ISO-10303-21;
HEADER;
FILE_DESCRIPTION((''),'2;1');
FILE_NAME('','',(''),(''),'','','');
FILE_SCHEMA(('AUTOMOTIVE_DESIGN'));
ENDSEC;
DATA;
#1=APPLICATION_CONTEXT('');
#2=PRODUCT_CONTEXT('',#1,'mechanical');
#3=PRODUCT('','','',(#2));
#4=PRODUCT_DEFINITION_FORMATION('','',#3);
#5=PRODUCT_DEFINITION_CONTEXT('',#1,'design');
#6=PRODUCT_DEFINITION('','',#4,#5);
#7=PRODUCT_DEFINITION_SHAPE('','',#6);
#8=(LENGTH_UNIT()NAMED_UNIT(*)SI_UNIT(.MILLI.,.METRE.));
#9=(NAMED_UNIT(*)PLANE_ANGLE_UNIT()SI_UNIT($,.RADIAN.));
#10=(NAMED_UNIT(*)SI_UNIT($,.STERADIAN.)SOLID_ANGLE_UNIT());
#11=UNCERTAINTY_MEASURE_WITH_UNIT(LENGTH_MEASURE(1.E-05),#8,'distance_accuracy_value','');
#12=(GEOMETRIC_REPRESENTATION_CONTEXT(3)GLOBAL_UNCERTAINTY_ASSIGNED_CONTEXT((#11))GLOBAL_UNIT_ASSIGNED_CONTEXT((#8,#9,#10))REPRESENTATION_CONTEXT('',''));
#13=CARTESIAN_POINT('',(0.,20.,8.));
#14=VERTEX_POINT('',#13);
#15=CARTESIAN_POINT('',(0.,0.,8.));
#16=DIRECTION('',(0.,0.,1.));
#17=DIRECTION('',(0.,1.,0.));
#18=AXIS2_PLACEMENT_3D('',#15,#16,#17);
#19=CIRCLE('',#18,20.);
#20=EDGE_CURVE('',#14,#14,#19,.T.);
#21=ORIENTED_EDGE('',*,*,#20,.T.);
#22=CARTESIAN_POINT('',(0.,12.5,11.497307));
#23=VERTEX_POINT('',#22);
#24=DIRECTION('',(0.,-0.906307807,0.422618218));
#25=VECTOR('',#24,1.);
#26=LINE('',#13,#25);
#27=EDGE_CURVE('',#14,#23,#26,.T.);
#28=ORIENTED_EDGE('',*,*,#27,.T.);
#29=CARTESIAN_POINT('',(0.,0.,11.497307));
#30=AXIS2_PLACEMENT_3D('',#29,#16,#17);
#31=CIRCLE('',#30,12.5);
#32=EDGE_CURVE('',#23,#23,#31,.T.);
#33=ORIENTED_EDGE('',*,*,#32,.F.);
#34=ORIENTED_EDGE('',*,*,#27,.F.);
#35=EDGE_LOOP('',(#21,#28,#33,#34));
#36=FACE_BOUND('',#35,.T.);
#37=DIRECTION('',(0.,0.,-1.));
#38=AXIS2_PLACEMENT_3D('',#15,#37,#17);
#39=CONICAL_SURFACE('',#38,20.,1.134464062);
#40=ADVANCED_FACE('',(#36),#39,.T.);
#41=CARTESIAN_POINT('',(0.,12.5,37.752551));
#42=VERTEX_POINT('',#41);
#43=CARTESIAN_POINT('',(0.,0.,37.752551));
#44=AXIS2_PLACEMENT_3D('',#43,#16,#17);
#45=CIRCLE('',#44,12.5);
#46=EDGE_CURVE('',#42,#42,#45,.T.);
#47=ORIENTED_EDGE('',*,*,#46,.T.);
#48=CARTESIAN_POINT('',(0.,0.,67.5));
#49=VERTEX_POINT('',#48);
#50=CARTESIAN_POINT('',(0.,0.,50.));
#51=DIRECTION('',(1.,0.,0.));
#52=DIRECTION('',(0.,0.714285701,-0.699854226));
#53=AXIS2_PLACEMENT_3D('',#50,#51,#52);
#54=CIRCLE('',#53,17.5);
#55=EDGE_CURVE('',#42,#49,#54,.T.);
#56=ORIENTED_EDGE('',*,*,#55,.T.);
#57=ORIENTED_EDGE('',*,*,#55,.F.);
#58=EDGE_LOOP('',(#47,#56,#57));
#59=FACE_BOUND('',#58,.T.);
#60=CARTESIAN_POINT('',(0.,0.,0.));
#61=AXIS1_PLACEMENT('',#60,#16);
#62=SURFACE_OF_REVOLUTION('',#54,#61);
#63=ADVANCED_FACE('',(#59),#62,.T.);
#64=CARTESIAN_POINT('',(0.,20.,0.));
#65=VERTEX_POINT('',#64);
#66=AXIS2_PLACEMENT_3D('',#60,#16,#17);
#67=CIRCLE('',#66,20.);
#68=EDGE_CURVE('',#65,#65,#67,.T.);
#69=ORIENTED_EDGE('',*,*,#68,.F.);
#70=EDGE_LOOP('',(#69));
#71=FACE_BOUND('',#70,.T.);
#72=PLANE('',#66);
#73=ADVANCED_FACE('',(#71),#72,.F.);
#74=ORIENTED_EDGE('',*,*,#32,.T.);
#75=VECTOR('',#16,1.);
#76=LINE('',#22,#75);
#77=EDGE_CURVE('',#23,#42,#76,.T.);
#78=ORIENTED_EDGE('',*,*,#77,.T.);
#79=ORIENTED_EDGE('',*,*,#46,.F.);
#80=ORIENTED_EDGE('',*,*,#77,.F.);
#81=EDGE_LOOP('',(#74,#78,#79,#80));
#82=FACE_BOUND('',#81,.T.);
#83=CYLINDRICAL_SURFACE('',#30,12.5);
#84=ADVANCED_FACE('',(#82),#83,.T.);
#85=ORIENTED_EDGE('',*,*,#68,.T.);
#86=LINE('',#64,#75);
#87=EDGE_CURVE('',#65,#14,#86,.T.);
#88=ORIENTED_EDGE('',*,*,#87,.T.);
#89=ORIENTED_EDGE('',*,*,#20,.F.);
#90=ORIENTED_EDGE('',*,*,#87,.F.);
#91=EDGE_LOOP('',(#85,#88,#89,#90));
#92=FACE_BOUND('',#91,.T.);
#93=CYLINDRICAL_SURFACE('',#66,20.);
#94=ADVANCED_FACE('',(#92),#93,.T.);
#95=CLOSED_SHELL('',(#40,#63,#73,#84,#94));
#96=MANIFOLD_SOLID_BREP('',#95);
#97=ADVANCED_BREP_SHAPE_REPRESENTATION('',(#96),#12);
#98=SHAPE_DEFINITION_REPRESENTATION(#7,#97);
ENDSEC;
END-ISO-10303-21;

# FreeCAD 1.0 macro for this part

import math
import FreeCAD as App
import Part
import Sketcher
from FreeCAD import Vector
Q = App.Units.Quantity

doc = App.newDocument("Part")
params = doc.addObject("Spreadsheet::Sheet", "Params")
for row, (alias, value) in enumerate([
    ("sketch1_radius", "17.5 mm"),
    ("sketch1_width", "20 mm"),
    ("sketch1_height", "8 mm"),
    ("sketch1_height2", "67.5 mm"),
    ("revolution_angle", "360 deg"),
], start=1):
    params.set(f"A{row}", alias)
    params.set(f"B{row}", "=" + value)
    params.setAlias(f"B{row}", alias)

body = doc.addObject("PartDesign::Body", "Body")

sketch1 = body.newObject("Sketcher::SketchObject", "Sketch")
sketch1.AttachmentSupport = (doc.getObject("YZ_Plane"), [""])
sketch1.MapMode = "FlatFace"
sketch1.addGeometry(Part.LineSegment(Vector(0, 0, 0), Vector(20, 0, 0)), False)
sketch1.addGeometry(Part.LineSegment(Vector(20, 0, 0), Vector(20, 8, 0)), False)
sketch1.addGeometry(Part.LineSegment(Vector(20, 8, 0), Vector(12, 11, 0)), False)
sketch1.addGeometry(Part.LineSegment(Vector(12, 11, 0), Vector(12, 38, 0)), False)
sketch1.addGeometry(Part.ArcOfCircle(Part.Circle(Vector(0, 50, 0), Vector(0, 0, 1), 18), math.radians(-44), math.radians(90)), False)
sketch1.addGeometry(Part.LineSegment(Vector(0, 68, 0), Vector(0, 0, 0)), False)
sketch1.addConstraint(Sketcher.Constraint("Coincident", 0, 2, 1, 1))
sketch1.addConstraint(Sketcher.Constraint("Coincident", 1, 2, 2, 1))
sketch1.addConstraint(Sketcher.Constraint("Coincident", 2, 2, 3, 1))
sketch1.addConstraint(Sketcher.Constraint("Coincident", 3, 2, 4, 1))
sketch1.addConstraint(Sketcher.Constraint("Coincident", 4, 2, 5, 1))
sketch1.addConstraint(Sketcher.Constraint("Coincident", 5, 2, 0, 1))
sketch1.addConstraint(Sketcher.Constraint("Horizontal", 0))
sketch1.addConstraint(Sketcher.Constraint("Vertical", 1))
sketch1.addConstraint(Sketcher.Constraint("Vertical", 3))
sketch1.addConstraint(Sketcher.Constraint("Vertical", 5))
sketch1.addConstraint(Sketcher.Constraint("Coincident", 5, 2, -1, 1))
sketch1.addConstraint(Sketcher.Constraint("PointOnObject", 4, 3, -2))
sketch1.addConstraint(Sketcher.Constraint("Radius", 4, 17.5))
sketch1.addConstraint(Sketcher.Constraint("DistanceX", 0, 1, 0, 2, 20.0))
sketch1.addConstraint(Sketcher.Constraint("DistanceY", 1, 1, 1, 2, 8.0))
sketch1.addConstraint(Sketcher.Constraint("Angle", 2, Q("155.000003 deg")))
sketch1.addConstraint(Sketcher.Constraint("DistanceY", 5, 2, 5, 1, 67.5))
sketch1.addConstraint(Sketcher.Constraint("DistanceX", -1, 1, 2, 2, 12.5))
sketch1.setExpression("Constraints[12]", "Params.sketch1_radius")
sketch1.setExpression("Constraints[13]", "Params.sketch1_width")
sketch1.setExpression("Constraints[14]", "Params.sketch1_height")
sketch1.setExpression("Constraints[16]", "Params.sketch1_height2")
revolution = body.newObject("PartDesign::Revolution", "Revolution")
revolution.Profile = sketch1
revolution.ReferenceAxis = (sketch1, ["V_Axis"])
revolution.setExpression("Angle", "Params.revolution_angle")

doc.recompute()
